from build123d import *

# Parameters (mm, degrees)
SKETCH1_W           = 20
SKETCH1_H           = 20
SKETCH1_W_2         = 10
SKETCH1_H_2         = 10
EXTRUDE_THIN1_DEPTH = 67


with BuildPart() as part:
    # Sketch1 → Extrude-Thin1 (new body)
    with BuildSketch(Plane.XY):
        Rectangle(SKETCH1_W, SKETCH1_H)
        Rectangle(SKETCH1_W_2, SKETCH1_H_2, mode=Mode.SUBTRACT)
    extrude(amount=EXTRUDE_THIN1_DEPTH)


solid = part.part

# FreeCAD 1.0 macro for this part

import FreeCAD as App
import Part
import Sketcher
Q = App.Units.Quantity


def add_polygon(sketch, points):
    """Adds a closed chain of lines whose ends are joined by coincident constraints."""
    first, n = sketch.GeometryCount, len(points)
    for a, b in zip(points, points[1:] + points[:1]):
        sketch.addGeometry(Part.LineSegment(App.Vector(*a, 0), App.Vector(*b, 0)), False)
    for i in range(n):
        sketch.addConstraint(Sketcher.Constraint("Coincident", first + i, 2, first + (i + 1) % n, 1))

doc = App.newDocument("Part")
body = doc.addObject("PartDesign::Body", "Body")

# Sketch on XY plane
sketch1 = body.newObject("Sketcher::SketchObject", "Sketch")
sketch1.AttachmentSupport = (doc.getObject("XY_Plane"), [""])
sketch1.MapMode = "FlatFace"
add_polygon(sketch1, [(-10, 10), (-10, -10), (10, -10), (10, 10)])  # lines 0-3
add_polygon(sketch1, [(5, -5), (-5, -5), (-5, 5), (5, 5)])  # lines 4-7
sketch1.addConstraint([
    Sketcher.Constraint("Vertical", 0),
    Sketcher.Constraint("Horizontal", 1),
    Sketcher.Constraint("Vertical", 2),
    Sketcher.Constraint("Horizontal", 3),
    Sketcher.Constraint("Horizontal", 4),
    Sketcher.Constraint("Vertical", 5),
    Sketcher.Constraint("Horizontal", 6),
    Sketcher.Constraint("Vertical", 7),
    Sketcher.Constraint("Symmetric", 0, 2, 2, 2, -1, 1),
    Sketcher.Constraint("Symmetric", 4, 2, 6, 2, -1, 1),
    Sketcher.Constraint("Equal", 3, 0),
    Sketcher.Constraint("Equal", 6, 5),
    Sketcher.Constraint("DistanceX", 1, 1, 1, 2, Q("20 mm")),
    Sketcher.Constraint("DistanceX", 4, 2, 4, 1, Q("10 mm")),
])
pad1 = body.newObject("PartDesign::Pad", "Pad")
pad1.Profile = sketch1
pad1.Length = 67

doc.recompute()
